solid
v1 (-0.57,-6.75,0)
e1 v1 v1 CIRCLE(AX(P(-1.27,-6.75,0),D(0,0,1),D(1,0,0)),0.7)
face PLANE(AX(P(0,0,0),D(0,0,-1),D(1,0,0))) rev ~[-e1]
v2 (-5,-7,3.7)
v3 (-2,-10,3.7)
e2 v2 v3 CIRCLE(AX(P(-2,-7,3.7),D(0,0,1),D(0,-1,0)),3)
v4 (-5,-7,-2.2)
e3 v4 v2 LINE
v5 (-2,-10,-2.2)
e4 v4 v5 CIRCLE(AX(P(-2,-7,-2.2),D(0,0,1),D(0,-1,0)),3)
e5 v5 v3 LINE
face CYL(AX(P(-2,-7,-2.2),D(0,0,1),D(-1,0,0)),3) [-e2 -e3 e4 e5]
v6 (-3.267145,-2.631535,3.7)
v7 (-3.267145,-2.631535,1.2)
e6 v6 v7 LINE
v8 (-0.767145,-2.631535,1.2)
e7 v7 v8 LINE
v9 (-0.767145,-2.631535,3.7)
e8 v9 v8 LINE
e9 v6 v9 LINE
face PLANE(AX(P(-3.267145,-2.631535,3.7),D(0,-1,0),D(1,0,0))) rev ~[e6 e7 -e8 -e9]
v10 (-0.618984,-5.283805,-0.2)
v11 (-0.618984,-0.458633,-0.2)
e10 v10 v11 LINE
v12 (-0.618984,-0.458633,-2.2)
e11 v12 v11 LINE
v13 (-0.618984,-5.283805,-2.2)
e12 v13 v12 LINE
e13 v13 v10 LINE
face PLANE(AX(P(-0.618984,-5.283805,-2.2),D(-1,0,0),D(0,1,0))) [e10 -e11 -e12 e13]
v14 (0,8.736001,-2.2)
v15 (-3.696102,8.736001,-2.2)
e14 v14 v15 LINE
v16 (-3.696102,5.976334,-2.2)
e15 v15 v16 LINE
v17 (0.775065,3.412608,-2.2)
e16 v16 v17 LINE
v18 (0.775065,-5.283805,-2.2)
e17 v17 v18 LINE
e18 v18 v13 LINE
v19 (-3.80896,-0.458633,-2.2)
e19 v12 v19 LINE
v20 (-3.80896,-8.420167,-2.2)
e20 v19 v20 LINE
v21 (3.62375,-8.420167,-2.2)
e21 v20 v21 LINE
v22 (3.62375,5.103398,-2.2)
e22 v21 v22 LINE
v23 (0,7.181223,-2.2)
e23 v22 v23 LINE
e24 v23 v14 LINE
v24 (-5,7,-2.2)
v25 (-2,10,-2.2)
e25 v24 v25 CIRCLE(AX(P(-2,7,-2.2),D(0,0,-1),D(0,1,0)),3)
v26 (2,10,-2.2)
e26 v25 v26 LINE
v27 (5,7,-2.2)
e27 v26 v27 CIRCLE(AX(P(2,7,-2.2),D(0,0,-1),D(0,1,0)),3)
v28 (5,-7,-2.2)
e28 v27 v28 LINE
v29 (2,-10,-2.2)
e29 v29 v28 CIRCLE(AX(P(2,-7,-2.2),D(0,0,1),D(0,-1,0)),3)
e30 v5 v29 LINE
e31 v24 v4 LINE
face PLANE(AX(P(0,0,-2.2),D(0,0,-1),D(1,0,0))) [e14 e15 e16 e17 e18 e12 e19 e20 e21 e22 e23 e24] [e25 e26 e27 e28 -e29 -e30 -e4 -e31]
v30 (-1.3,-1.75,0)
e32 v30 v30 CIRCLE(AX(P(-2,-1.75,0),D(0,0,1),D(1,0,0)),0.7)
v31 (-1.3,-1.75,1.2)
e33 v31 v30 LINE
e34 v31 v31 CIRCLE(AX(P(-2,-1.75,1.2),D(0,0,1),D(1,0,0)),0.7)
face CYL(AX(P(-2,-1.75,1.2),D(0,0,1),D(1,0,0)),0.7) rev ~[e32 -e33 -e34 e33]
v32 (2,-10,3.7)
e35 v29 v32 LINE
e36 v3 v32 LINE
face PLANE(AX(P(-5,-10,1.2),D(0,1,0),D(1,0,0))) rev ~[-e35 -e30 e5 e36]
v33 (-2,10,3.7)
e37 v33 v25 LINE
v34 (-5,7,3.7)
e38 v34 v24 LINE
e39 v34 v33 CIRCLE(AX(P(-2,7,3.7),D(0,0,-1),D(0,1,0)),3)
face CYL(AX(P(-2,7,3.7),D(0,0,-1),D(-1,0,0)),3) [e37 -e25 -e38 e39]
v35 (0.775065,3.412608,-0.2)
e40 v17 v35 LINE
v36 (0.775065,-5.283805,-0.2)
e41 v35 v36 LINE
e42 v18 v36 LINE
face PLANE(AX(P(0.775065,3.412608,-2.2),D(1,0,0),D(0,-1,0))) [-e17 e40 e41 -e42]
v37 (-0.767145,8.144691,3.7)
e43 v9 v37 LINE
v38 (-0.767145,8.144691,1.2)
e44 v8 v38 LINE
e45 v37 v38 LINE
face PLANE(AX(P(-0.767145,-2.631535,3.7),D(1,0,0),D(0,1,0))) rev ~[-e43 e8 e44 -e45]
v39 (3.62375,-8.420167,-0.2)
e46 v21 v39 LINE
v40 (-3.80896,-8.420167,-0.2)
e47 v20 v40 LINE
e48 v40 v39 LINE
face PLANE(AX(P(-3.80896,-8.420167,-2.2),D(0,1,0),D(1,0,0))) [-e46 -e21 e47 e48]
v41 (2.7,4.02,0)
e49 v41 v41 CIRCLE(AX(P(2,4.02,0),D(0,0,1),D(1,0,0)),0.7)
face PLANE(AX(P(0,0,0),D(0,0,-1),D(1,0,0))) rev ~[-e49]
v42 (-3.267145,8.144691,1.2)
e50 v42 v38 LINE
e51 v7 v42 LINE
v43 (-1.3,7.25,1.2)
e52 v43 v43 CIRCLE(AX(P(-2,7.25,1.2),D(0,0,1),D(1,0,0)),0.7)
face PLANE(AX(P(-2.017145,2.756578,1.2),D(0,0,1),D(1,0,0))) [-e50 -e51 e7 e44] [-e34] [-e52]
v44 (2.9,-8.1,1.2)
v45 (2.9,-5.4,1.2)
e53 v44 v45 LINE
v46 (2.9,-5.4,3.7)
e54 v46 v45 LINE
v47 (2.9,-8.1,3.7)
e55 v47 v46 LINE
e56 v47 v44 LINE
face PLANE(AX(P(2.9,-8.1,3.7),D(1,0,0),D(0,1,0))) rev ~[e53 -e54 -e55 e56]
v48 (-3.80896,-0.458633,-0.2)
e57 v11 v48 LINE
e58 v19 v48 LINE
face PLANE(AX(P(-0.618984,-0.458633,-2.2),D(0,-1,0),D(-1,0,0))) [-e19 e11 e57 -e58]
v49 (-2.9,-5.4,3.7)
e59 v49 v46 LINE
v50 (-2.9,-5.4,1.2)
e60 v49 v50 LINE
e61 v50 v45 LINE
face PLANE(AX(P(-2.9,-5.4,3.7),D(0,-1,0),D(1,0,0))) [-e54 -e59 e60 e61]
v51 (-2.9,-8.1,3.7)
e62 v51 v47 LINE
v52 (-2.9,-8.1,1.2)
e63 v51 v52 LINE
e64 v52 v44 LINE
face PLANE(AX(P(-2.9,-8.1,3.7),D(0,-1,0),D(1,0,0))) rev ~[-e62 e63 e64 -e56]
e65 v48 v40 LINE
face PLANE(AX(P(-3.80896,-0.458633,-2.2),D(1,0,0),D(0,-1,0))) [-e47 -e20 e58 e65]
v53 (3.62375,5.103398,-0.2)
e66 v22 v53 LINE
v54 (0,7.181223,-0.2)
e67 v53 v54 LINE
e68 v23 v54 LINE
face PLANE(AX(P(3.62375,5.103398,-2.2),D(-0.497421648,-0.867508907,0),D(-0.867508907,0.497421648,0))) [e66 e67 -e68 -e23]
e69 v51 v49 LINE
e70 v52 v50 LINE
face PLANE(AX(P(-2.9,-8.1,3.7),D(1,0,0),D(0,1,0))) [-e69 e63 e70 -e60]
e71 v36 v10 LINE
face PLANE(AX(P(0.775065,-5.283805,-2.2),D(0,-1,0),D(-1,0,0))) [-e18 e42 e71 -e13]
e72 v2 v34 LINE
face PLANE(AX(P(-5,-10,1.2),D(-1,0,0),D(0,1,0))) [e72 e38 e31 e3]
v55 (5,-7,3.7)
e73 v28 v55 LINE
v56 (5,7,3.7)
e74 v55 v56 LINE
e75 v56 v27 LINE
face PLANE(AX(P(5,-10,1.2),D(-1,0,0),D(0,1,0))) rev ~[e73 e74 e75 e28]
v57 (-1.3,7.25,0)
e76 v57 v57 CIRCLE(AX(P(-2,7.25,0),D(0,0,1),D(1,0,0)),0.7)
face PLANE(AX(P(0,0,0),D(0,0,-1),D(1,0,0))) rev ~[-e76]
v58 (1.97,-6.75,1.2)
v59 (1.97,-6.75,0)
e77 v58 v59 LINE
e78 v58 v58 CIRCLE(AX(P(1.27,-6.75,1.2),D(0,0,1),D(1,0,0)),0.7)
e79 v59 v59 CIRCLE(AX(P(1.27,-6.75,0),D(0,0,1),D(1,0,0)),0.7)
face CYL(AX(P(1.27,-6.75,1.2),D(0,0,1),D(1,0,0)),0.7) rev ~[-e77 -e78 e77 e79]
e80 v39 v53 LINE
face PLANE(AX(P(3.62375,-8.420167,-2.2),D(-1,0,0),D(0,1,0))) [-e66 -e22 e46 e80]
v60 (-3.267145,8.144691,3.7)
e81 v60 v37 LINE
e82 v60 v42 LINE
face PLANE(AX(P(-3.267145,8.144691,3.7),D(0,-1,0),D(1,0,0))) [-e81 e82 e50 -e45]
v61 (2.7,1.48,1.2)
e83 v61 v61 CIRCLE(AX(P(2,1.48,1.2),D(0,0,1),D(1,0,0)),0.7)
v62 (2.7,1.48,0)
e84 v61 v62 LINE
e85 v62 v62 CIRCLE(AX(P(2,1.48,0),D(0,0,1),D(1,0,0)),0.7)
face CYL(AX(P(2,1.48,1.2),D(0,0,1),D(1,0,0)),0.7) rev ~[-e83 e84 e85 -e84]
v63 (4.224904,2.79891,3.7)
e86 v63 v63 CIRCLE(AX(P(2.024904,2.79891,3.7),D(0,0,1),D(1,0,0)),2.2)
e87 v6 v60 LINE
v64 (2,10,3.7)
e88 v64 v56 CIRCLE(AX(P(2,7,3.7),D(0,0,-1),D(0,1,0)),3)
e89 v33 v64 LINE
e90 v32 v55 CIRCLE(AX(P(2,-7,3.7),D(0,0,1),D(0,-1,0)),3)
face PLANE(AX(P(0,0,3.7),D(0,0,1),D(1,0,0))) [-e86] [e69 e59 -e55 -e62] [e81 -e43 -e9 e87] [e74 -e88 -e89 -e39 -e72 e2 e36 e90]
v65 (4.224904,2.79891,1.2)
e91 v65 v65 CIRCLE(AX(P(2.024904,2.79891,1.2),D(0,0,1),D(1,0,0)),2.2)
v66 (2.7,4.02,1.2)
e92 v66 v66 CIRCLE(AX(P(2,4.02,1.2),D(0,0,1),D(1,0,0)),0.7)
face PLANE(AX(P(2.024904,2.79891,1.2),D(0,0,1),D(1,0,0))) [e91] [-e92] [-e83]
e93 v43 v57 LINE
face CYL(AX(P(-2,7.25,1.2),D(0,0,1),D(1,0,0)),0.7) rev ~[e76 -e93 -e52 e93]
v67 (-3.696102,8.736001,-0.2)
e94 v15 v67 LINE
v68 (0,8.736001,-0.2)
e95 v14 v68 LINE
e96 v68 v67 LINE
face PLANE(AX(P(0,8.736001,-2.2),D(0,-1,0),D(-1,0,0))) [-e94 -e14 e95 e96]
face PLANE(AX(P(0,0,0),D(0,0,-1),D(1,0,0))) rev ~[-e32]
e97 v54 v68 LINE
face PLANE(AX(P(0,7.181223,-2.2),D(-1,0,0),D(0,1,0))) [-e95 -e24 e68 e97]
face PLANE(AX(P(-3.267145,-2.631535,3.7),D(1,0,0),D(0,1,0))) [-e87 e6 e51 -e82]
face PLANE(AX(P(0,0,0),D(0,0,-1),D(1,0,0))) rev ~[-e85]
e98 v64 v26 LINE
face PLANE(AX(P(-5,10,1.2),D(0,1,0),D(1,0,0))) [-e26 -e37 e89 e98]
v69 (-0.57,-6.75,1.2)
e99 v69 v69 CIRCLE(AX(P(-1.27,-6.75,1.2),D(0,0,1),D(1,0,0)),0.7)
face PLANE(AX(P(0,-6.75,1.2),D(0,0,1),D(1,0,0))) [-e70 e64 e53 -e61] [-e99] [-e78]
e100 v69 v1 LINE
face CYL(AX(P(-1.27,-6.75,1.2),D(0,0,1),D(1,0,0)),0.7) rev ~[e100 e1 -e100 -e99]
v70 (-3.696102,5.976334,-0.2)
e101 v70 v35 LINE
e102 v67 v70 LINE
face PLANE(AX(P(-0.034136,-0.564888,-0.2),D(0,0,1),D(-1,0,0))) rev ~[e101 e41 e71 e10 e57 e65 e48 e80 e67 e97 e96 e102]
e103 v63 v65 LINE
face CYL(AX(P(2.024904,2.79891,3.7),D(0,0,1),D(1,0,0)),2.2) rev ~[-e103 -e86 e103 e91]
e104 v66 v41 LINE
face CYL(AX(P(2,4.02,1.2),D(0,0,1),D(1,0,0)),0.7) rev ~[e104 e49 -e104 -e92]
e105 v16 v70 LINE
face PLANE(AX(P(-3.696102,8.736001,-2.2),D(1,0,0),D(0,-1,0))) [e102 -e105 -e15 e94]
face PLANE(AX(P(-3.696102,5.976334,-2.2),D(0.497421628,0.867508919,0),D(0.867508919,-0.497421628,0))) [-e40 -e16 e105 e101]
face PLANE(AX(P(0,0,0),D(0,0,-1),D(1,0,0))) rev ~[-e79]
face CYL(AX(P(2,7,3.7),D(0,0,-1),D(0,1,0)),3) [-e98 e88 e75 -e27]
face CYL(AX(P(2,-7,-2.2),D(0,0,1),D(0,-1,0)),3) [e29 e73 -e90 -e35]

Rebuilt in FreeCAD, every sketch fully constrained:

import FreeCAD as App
import Part
import Sketcher
from FreeCAD import Vector


def edges_at(feature, points):
    """Names of the edges that pass closest to the given points."""
    edges = feature.Shape.Edges
    near = lambda p: min(range(len(edges)), key=lambda i: edges[i].distToShape(Part.Vertex(*p))[0])
    return sorted({f"Edge{near(p) + 1}" for p in points})

doc = App.newDocument("Part")
body = doc.addObject("PartDesign::Body", "Body")

sketch1 = doc.addObject("Sketcher::SketchObject", "Sketch")
body.addObject(sketch1)
sketch1.AttachmentSupport = (doc.XY_Plane, [""])
sketch1.MapMode = "FlatFace"
sketch1.addGeometry([
    Part.LineSegment(Vector(-5, 10, 0), Vector(-5, -10, 0)),
    Part.LineSegment(Vector(-5, -10, 0), Vector(5, -10, 0)),
    Part.LineSegment(Vector(5, -10, 0), Vector(5, 10, 0)),
    Part.LineSegment(Vector(5, 10, 0), Vector(-5, 10, 0)),
], False)
sketch1.addConstraint([
    Sketcher.Constraint("Coincident", 0, 2, 1, 1),
    Sketcher.Constraint("Coincident", 1, 2, 2, 1),
    Sketcher.Constraint("Coincident", 2, 2, 3, 1),
    Sketcher.Constraint("Coincident", 3, 2, 0, 1),
    Sketcher.Constraint("Vertical", 0),
    Sketcher.Constraint("Horizontal", 1),
    Sketcher.Constraint("Vertical", 2),
    Sketcher.Constraint("Horizontal", 3),
    Sketcher.Constraint("Symmetric", 0, 2, 2, 2, -1, 1),
    Sketcher.Constraint("DistanceX", 1, 1, 1, 2, 10.0),
    Sketcher.Constraint("DistanceY", 0, 2, 0, 1, 20.0),
])
pad1 = doc.addObject("PartDesign::Pad", "Pad")
body.addObject(pad1)
pad1.Profile = sketch1
pad1.Length = 1.2

sketch2 = doc.addObject("Sketcher::SketchObject", "Sketch001")
body.addObject(sketch2)
sketch2.AttachmentSupport = (doc.XY_Plane, [""])
sketch2.MapMode = "FlatFace"
sketch2.AttachmentOffset = App.Placement(Vector(0, 0, 1.2), App.Rotation())
sketch2.addGeometry([
    Part.Circle(Vector(-1.3, -6.8, 0), Vector(0, 0, 1), 0.7),
    Part.Circle(Vector(1.3, -6.8, 0), Vector(0, 0, 1), 0.7),
    Part.Circle(Vector(-2, 7.2, 0), Vector(0, 0, 1), 0.7),
    Part.Circle(Vector(-2, -1.8, 0), Vector(0, 0, 1), 0.7),
    Part.Circle(Vector(2, 4, 0), Vector(0, 0, 1), 0.7),
    Part.Circle(Vector(2, 1.5, 0), Vector(0, 0, 1), 0.7),
], False)
sketch2.addConstraint([
    Sketcher.Constraint("Equal", 0, 1),
    Sketcher.Constraint("Equal", 1, 2),
    Sketcher.Constraint("Equal", 2, 3),
    Sketcher.Constraint("Equal", 3, 4),
    Sketcher.Constraint("Equal", 4, 5),
    Sketcher.Constraint("Symmetric", 0, 3, 1, 3, -2),
    Sketcher.Constraint("Vertical", 2, 3, 3, 3),
    Sketcher.Constraint("Vertical", 4, 3, 5, 3),
    Sketcher.Constraint("Diameter", 0, 1.4),
    Sketcher.Constraint("DistanceX", 2, 3, -1, 1, 2.0),
    Sketcher.Constraint("DistanceX", -1, 1, 4, 3, 2.0),
    Sketcher.Constraint("DistanceY", 0, 3, 2, 3, 14.0),
    Sketcher.Constraint("DistanceY", 0, 3, 3, 3, 5.0),
    Sketcher.Constraint("DistanceX", 0, 3, -1, 1, 1.27),
    Sketcher.Constraint("DistanceY", 0, 3, -1, 1, 6.75),
    Sketcher.Constraint("DistanceY", -1, 1, 4, 3, 4.02),
    Sketcher.Constraint("DistanceY", -1, 1, 5, 3, 1.48),
])
pocket1 = doc.addObject("PartDesign::Pocket", "Pocket")
body.addObject(pocket1)
pocket1.Profile = sketch2
pocket1.Type = "ThroughAll"

sketch3 = doc.addObject("Sketcher::SketchObject", "Sketch002")
body.addObject(sketch3)
sketch3.AttachmentSupport = (doc.XY_Plane, [""])
sketch3.MapMode = "FlatFace"
sketch3.addGeometry([
    Part.LineSegment(Vector(-5, -10, 0), Vector(-5, 10, 0)),
    Part.LineSegment(Vector(-5, 10, 0), Vector(5, 10, 0)),
    Part.LineSegment(Vector(5, 10, 0), Vector(5, -10, 0)),
    Part.LineSegment(Vector(5, -10, 0), Vector(-5, -10, 0)),
], False)
sketch3.addConstraint([
    Sketcher.Constraint("Coincident", 0, 2, 1, 1),
    Sketcher.Constraint("Coincident", 1, 2, 2, 1),
    Sketcher.Constraint("Coincident", 2, 2, 3, 1),
    Sketcher.Constraint("Coincident", 3, 2, 0, 1),
    Sketcher.Constraint("Vertical", 0),
    Sketcher.Constraint("Horizontal", 1),
    Sketcher.Constraint("Vertical", 2),
    Sketcher.Constraint("Horizontal", 3),
    Sketcher.Constraint("Symmetric", 0, 2, 2, 2, -1, 1),
    Sketcher.Constraint("DistanceX", 1, 1, 1, 2, 10.0),
    Sketcher.Constraint("DistanceY", 0, 1, 0, 2, 20.0),
])
pad2 = doc.addObject("PartDesign::Pad", "Pad001")
body.addObject(pad2)
pad2.Profile = sketch3
pad2.Length = 0.2
pad2.Reversed = True

sketch4 = doc.addObject("Sketcher::SketchObject", "Sketch003")
body.addObject(sketch4)
sketch4.AttachmentSupport = (doc.XY_Plane, [""])
sketch4.MapMode = "FlatFace"
sketch4.AttachmentOffset = App.Placement(Vector(0, 0, -0.2), App.Rotation())
sketch4.addGeometry([
    Part.LineSegment(Vector(-5, -10, 0), Vector(-5, 10, 0)),
    Part.LineSegment(Vector(-5, 10, 0), Vector(5, 10, 0)),
    Part.LineSegment(Vector(5, 10, 0), Vector(5, -10, 0)),
    Part.LineSegment(Vector(5, -10, 0), Vector(-5, -10, 0)),
], False)
sketch4.addConstraint([
    Sketcher.Constraint("Coincident", 0, 2, 1, 1),
    Sketcher.Constraint("Coincident", 1, 2, 2, 1),
    Sketcher.Constraint("Coincident", 2, 2, 3, 1),
    Sketcher.Constraint("Coincident", 3, 2, 0, 1),
    Sketcher.Constraint("Vertical", 0),
    Sketcher.Constraint("Horizontal", 1),
    Sketcher.Constraint("Vertical", 2),
    Sketcher.Constraint("Horizontal", 3),
    Sketcher.Constraint("Symmetric", 0, 2, 2, 2, -1, 1),
    Sketcher.Constraint("DistanceX", 1, 1, 1, 2, 10.0),
    Sketcher.Constraint("DistanceY", 0, 1, 0, 2, 20.0),
])
pad3 = doc.addObject("PartDesign::Pad", "Pad002")
body.addObject(pad3)
pad3.Profile = sketch4
pad3.Length = 2
pad3.Reversed = True

sketch5 = doc.addObject("Sketcher::SketchObject", "Sketch004")
body.addObject(sketch5)
sketch5.AttachmentSupport = (doc.XY_Plane, [""])
sketch5.MapMode = "FlatFace"
sketch5.AttachmentOffset = App.Placement(Vector(0, 0, -2.2), App.Rotation())
sketch5.addGeometry([
    Part.LineSegment(Vector(3.6, -8.4, 0), Vector(-3.8, -8.4, 0)),
    Part.LineSegment(Vector(-3.8, -8.4, 0), Vector(-3.8, -0.5, 0)),
    Part.LineSegment(Vector(-3.8, -0.5, 0), Vector(-0.6, -0.5, 0)),
    Part.LineSegment(Vector(-0.6, -0.5, 0), Vector(-0.6, -5.3, 0)),
    Part.LineSegment(Vector(-0.6, -5.3, 0), Vector(0.8, -5.3, 0)),
    Part.LineSegment(Vector(0.8, -5.3, 0), Vector(0.8, 3.4, 0)),
    Part.LineSegment(Vector(0.8, 3.4, 0), Vector(-3.7, 6, 0)),
    Part.LineSegment(Vector(-3.7, 6, 0), Vector(-3.7, 8.7, 0)),
    Part.LineSegment(Vector(-3.7, 8.7, 0), Vector(0, 8.7, 0)),
    Part.LineSegment(Vector(0, 8.7, 0), Vector(0, 7.2, 0)),
    Part.LineSegment(Vector(0, 7.2, 0), Vector(3.6, 5.1, 0)),
    Part.LineSegment(Vector(3.6, 5.1, 0), Vector(3.6, -8.4, 0)),
], False)
sketch5.addConstraint([
    Sketcher.Constraint("Coincident", 0, 2, 1, 1),
    Sketcher.Constraint("Coincident", 1, 2, 2, 1),
    Sketcher.Constraint("Coincident", 2, 2, 3, 1),
    Sketcher.Constraint("Coincident", 3, 2, 4, 1),
    Sketcher.Constraint("Coincident", 4, 2, 5, 1),
    Sketcher.Constraint("Coincident", 5, 2, 6, 1),
    Sketcher.Constraint("Coincident", 6, 2, 7, 1),
    Sketcher.Constraint("Coincident", 7, 2, 8, 1),
    Sketcher.Constraint("Coincident", 8, 2, 9, 1),
    Sketcher.Constraint("Coincident", 9, 2, 10, 1),
    Sketcher.Constraint("Coincident", 10, 2, 11, 1),
    Sketcher.Constraint("Coincident", 11, 2, 0, 1),
    Sketcher.Constraint("Horizontal", 0),
    Sketcher.Constraint("Vertical", 1),
    Sketcher.Constraint("Horizontal", 2),
    Sketcher.Constraint("Vertical", 3),
    Sketcher.Constraint("Horizontal", 4),
    Sketcher.Constraint("Vertical", 5),
    Sketcher.Constraint("Vertical", 7),
    Sketcher.Constraint("Horizontal", 8),
    Sketcher.Constraint("Vertical", 9),
    Sketcher.Constraint("Vertical", 11),
    Sketcher.Constraint("PointOnObject", 8, 2, -2),
    Sketcher.Constraint("Parallel", 6, 10),
    Sketcher.Constraint("DistanceY", -1, 1, 7, 2, 8.736001),
    Sketcher.Constraint("DistanceX", 0, 2, 0, 1, 7.43271),
    Sketcher.Constraint("DistanceX", 4, 1, 4, 2, 1.394049),
    Sketcher.Constraint("DistanceY", -1, 1, 10, 2, 5.103398),
    Sketcher.Constraint("Distance", 6, 5.15403),
    Sketcher.Constraint("Distance", 10, 4.177191),
    Sketcher.Constraint("DistanceX", 2, 1, 2, 2, 3.189976),
    Sketcher.Constraint("DistanceX", 8, 1, 8, 2, 3.696102),
    Sketcher.Constraint("DistanceY", 1, 1, 1, 2, 7.961534),
    Sketcher.Constraint("DistanceY", 3, 2, 3, 1, 4.825172),
    Sketcher.Constraint("DistanceY", 5, 1, 5, 2, 8.696413),
    Sketcher.Constraint("DistanceY", 7, 1, 7, 2, 2.759667),
])
pocket2 = doc.addObject("PartDesign::Pocket", "Pocket001")
body.addObject(pocket2)
pocket2.Profile = sketch5
pocket2.Length = 2
pocket2.Reversed = True

sketch6 = doc.addObject("Sketcher::SketchObject", "Sketch005")
body.addObject(sketch6)
sketch6.AttachmentSupport = (doc.XY_Plane, [""])
sketch6.MapMode = "FlatFace"
sketch6.AttachmentOffset = App.Placement(Vector(0, 0, 1.2), App.Rotation())
sketch6.addGeometry([
    Part.LineSegment(Vector(-5, 10, 0), Vector(-5, -10, 0)),
    Part.LineSegment(Vector(-5, -10, 0), Vector(5, -10, 0)),
    Part.LineSegment(Vector(5, -10, 0), Vector(5, 10, 0)),
    Part.LineSegment(Vector(5, 10, 0), Vector(-5, 10, 0)),
], False)
sketch6.addConstraint([
    Sketcher.Constraint("Coincident", 0, 2, 1, 1),
    Sketcher.Constraint("Coincident", 1, 2, 2, 1),
    Sketcher.Constraint("Coincident", 2, 2, 3, 1),
    Sketcher.Constraint("Coincident", 3, 2, 0, 1),
    Sketcher.Constraint("Vertical", 0),
    Sketcher.Constraint("Horizontal", 1),
    Sketcher.Constraint("Vertical", 2),
    Sketcher.Constraint("Horizontal", 3),
    Sketcher.Constraint("Symmetric", 0, 2, 2, 2, -1, 1),
    Sketcher.Constraint("DistanceX", 1, 1, 1, 2, 10.0),
    Sketcher.Constraint("DistanceY", 0, 2, 0, 1, 20.0),
])
pad4 = doc.addObject("PartDesign::Pad", "Pad003")
body.addObject(pad4)
pad4.Profile = sketch6
pad4.Length = 2.5

sketch7 = doc.addObject("Sketcher::SketchObject", "Sketch006")
body.addObject(sketch7)
sketch7.AttachmentSupport = (doc.XY_Plane, [""])
sketch7.MapMode = "FlatFace"
sketch7.AttachmentOffset = App.Placement(Vector(0, 0, 3.7), App.Rotation())
sketch7.addGeometry([
    Part.Circle(Vector(2, 2.8, 0), Vector(0, 0, 1), 2.2),
    Part.LineSegment(Vector(-2.9, -5.4, 0), Vector(-2.9, -8.1, 0)),
    Part.LineSegment(Vector(-2.9, -8.1, 0), Vector(2.9, -8.1, 0)),
    Part.LineSegment(Vector(2.9, -8.1, 0), Vector(2.9, -5.4, 0)),
    Part.LineSegment(Vector(2.9, -5.4, 0), Vector(-2.9, -5.4, 0)),
    Part.LineSegment(Vector(-3.3, 8.1, 0), Vector(-3.3, -2.6, 0)),
    Part.LineSegment(Vector(-3.3, -2.6, 0), Vector(-0.8, -2.6, 0)),
    Part.LineSegment(Vector(-0.8, -2.6, 0), Vector(-0.8, 8.1, 0)),
    Part.LineSegment(Vector(-0.8, 8.1, 0), Vector(-3.3, 8.1, 0)),
], False)
sketch7.addConstraint([
    Sketcher.Constraint("Coincident", 1, 2, 2, 1),
    Sketcher.Constraint("Coincident", 2, 2, 3, 1),
    Sketcher.Constraint("Coincident", 3, 2, 4, 1),
    Sketcher.Constraint("Coincident", 4, 2, 1, 1),
    Sketcher.Constraint("Coincident", 5, 2, 6, 1),
    Sketcher.Constraint("Coincident", 6, 2, 7, 1),
    Sketcher.Constraint("Coincident", 7, 2, 8, 1),
    Sketcher.Constraint("Coincident", 8, 2, 5, 1),
    Sketcher.Constraint("Vertical", 1),
    Sketcher.Constraint("Horizontal", 2),
    Sketcher.Constraint("Vertical", 3),
    Sketcher.Constraint("Horizontal", 4),
    Sketcher.Constraint("Vertical", 5),
    Sketcher.Constraint("Horizontal", 6),
    Sketcher.Constraint("Vertical", 7),
    Sketcher.Constraint("Horizontal", 8),
    Sketcher.Constraint("Diameter", 0, 4.4),
    Sketcher.Constraint("DistanceX", 2, 1, 2, 2, 5.8),
    Sketcher.Constraint("DistanceX", 6, 1, 6, 2, 2.5),
    Sketcher.Constraint("DistanceY", 1, 2, 1, 1, 2.7),
    Sketcher.Constraint("DistanceX", 1, 2, -1, 1, 2.9),
    Sketcher.Constraint("DistanceY", 1, 2, -1, 1, 8.1),
    Sketcher.Constraint("DistanceY", 5, 2, 5, 1, 10.776226),
    Sketcher.Constraint("DistanceY", -1, 1, 0, 3, 2.79891),
    Sketcher.Constraint("DistanceY", -1, 1, 7, 2, 8.144691),
    Sketcher.Constraint("DistanceX", 5, 2, 0, 3, 5.292049),
    Sketcher.Constraint("DistanceX", -1, 1, 0, 3, 2.024904),
])
pocket3 = doc.addObject("PartDesign::Pocket", "Pocket002")
body.addObject(pocket3)
pocket3.Profile = sketch7
pocket3.Length = 2.5
doc.recompute()

fillet = doc.addObject("PartDesign::Fillet", "Fillet")
body.addObject(fillet)
fillet.Base = (pocket3, edges_at(pocket3, [
    (5, -10, 0.75),
    (-5, -10, 0.75),
    (5, 10, 0.75),
    (-5, 10, 0.75),
]))
fillet.Radius = 3

doc.recompute()
